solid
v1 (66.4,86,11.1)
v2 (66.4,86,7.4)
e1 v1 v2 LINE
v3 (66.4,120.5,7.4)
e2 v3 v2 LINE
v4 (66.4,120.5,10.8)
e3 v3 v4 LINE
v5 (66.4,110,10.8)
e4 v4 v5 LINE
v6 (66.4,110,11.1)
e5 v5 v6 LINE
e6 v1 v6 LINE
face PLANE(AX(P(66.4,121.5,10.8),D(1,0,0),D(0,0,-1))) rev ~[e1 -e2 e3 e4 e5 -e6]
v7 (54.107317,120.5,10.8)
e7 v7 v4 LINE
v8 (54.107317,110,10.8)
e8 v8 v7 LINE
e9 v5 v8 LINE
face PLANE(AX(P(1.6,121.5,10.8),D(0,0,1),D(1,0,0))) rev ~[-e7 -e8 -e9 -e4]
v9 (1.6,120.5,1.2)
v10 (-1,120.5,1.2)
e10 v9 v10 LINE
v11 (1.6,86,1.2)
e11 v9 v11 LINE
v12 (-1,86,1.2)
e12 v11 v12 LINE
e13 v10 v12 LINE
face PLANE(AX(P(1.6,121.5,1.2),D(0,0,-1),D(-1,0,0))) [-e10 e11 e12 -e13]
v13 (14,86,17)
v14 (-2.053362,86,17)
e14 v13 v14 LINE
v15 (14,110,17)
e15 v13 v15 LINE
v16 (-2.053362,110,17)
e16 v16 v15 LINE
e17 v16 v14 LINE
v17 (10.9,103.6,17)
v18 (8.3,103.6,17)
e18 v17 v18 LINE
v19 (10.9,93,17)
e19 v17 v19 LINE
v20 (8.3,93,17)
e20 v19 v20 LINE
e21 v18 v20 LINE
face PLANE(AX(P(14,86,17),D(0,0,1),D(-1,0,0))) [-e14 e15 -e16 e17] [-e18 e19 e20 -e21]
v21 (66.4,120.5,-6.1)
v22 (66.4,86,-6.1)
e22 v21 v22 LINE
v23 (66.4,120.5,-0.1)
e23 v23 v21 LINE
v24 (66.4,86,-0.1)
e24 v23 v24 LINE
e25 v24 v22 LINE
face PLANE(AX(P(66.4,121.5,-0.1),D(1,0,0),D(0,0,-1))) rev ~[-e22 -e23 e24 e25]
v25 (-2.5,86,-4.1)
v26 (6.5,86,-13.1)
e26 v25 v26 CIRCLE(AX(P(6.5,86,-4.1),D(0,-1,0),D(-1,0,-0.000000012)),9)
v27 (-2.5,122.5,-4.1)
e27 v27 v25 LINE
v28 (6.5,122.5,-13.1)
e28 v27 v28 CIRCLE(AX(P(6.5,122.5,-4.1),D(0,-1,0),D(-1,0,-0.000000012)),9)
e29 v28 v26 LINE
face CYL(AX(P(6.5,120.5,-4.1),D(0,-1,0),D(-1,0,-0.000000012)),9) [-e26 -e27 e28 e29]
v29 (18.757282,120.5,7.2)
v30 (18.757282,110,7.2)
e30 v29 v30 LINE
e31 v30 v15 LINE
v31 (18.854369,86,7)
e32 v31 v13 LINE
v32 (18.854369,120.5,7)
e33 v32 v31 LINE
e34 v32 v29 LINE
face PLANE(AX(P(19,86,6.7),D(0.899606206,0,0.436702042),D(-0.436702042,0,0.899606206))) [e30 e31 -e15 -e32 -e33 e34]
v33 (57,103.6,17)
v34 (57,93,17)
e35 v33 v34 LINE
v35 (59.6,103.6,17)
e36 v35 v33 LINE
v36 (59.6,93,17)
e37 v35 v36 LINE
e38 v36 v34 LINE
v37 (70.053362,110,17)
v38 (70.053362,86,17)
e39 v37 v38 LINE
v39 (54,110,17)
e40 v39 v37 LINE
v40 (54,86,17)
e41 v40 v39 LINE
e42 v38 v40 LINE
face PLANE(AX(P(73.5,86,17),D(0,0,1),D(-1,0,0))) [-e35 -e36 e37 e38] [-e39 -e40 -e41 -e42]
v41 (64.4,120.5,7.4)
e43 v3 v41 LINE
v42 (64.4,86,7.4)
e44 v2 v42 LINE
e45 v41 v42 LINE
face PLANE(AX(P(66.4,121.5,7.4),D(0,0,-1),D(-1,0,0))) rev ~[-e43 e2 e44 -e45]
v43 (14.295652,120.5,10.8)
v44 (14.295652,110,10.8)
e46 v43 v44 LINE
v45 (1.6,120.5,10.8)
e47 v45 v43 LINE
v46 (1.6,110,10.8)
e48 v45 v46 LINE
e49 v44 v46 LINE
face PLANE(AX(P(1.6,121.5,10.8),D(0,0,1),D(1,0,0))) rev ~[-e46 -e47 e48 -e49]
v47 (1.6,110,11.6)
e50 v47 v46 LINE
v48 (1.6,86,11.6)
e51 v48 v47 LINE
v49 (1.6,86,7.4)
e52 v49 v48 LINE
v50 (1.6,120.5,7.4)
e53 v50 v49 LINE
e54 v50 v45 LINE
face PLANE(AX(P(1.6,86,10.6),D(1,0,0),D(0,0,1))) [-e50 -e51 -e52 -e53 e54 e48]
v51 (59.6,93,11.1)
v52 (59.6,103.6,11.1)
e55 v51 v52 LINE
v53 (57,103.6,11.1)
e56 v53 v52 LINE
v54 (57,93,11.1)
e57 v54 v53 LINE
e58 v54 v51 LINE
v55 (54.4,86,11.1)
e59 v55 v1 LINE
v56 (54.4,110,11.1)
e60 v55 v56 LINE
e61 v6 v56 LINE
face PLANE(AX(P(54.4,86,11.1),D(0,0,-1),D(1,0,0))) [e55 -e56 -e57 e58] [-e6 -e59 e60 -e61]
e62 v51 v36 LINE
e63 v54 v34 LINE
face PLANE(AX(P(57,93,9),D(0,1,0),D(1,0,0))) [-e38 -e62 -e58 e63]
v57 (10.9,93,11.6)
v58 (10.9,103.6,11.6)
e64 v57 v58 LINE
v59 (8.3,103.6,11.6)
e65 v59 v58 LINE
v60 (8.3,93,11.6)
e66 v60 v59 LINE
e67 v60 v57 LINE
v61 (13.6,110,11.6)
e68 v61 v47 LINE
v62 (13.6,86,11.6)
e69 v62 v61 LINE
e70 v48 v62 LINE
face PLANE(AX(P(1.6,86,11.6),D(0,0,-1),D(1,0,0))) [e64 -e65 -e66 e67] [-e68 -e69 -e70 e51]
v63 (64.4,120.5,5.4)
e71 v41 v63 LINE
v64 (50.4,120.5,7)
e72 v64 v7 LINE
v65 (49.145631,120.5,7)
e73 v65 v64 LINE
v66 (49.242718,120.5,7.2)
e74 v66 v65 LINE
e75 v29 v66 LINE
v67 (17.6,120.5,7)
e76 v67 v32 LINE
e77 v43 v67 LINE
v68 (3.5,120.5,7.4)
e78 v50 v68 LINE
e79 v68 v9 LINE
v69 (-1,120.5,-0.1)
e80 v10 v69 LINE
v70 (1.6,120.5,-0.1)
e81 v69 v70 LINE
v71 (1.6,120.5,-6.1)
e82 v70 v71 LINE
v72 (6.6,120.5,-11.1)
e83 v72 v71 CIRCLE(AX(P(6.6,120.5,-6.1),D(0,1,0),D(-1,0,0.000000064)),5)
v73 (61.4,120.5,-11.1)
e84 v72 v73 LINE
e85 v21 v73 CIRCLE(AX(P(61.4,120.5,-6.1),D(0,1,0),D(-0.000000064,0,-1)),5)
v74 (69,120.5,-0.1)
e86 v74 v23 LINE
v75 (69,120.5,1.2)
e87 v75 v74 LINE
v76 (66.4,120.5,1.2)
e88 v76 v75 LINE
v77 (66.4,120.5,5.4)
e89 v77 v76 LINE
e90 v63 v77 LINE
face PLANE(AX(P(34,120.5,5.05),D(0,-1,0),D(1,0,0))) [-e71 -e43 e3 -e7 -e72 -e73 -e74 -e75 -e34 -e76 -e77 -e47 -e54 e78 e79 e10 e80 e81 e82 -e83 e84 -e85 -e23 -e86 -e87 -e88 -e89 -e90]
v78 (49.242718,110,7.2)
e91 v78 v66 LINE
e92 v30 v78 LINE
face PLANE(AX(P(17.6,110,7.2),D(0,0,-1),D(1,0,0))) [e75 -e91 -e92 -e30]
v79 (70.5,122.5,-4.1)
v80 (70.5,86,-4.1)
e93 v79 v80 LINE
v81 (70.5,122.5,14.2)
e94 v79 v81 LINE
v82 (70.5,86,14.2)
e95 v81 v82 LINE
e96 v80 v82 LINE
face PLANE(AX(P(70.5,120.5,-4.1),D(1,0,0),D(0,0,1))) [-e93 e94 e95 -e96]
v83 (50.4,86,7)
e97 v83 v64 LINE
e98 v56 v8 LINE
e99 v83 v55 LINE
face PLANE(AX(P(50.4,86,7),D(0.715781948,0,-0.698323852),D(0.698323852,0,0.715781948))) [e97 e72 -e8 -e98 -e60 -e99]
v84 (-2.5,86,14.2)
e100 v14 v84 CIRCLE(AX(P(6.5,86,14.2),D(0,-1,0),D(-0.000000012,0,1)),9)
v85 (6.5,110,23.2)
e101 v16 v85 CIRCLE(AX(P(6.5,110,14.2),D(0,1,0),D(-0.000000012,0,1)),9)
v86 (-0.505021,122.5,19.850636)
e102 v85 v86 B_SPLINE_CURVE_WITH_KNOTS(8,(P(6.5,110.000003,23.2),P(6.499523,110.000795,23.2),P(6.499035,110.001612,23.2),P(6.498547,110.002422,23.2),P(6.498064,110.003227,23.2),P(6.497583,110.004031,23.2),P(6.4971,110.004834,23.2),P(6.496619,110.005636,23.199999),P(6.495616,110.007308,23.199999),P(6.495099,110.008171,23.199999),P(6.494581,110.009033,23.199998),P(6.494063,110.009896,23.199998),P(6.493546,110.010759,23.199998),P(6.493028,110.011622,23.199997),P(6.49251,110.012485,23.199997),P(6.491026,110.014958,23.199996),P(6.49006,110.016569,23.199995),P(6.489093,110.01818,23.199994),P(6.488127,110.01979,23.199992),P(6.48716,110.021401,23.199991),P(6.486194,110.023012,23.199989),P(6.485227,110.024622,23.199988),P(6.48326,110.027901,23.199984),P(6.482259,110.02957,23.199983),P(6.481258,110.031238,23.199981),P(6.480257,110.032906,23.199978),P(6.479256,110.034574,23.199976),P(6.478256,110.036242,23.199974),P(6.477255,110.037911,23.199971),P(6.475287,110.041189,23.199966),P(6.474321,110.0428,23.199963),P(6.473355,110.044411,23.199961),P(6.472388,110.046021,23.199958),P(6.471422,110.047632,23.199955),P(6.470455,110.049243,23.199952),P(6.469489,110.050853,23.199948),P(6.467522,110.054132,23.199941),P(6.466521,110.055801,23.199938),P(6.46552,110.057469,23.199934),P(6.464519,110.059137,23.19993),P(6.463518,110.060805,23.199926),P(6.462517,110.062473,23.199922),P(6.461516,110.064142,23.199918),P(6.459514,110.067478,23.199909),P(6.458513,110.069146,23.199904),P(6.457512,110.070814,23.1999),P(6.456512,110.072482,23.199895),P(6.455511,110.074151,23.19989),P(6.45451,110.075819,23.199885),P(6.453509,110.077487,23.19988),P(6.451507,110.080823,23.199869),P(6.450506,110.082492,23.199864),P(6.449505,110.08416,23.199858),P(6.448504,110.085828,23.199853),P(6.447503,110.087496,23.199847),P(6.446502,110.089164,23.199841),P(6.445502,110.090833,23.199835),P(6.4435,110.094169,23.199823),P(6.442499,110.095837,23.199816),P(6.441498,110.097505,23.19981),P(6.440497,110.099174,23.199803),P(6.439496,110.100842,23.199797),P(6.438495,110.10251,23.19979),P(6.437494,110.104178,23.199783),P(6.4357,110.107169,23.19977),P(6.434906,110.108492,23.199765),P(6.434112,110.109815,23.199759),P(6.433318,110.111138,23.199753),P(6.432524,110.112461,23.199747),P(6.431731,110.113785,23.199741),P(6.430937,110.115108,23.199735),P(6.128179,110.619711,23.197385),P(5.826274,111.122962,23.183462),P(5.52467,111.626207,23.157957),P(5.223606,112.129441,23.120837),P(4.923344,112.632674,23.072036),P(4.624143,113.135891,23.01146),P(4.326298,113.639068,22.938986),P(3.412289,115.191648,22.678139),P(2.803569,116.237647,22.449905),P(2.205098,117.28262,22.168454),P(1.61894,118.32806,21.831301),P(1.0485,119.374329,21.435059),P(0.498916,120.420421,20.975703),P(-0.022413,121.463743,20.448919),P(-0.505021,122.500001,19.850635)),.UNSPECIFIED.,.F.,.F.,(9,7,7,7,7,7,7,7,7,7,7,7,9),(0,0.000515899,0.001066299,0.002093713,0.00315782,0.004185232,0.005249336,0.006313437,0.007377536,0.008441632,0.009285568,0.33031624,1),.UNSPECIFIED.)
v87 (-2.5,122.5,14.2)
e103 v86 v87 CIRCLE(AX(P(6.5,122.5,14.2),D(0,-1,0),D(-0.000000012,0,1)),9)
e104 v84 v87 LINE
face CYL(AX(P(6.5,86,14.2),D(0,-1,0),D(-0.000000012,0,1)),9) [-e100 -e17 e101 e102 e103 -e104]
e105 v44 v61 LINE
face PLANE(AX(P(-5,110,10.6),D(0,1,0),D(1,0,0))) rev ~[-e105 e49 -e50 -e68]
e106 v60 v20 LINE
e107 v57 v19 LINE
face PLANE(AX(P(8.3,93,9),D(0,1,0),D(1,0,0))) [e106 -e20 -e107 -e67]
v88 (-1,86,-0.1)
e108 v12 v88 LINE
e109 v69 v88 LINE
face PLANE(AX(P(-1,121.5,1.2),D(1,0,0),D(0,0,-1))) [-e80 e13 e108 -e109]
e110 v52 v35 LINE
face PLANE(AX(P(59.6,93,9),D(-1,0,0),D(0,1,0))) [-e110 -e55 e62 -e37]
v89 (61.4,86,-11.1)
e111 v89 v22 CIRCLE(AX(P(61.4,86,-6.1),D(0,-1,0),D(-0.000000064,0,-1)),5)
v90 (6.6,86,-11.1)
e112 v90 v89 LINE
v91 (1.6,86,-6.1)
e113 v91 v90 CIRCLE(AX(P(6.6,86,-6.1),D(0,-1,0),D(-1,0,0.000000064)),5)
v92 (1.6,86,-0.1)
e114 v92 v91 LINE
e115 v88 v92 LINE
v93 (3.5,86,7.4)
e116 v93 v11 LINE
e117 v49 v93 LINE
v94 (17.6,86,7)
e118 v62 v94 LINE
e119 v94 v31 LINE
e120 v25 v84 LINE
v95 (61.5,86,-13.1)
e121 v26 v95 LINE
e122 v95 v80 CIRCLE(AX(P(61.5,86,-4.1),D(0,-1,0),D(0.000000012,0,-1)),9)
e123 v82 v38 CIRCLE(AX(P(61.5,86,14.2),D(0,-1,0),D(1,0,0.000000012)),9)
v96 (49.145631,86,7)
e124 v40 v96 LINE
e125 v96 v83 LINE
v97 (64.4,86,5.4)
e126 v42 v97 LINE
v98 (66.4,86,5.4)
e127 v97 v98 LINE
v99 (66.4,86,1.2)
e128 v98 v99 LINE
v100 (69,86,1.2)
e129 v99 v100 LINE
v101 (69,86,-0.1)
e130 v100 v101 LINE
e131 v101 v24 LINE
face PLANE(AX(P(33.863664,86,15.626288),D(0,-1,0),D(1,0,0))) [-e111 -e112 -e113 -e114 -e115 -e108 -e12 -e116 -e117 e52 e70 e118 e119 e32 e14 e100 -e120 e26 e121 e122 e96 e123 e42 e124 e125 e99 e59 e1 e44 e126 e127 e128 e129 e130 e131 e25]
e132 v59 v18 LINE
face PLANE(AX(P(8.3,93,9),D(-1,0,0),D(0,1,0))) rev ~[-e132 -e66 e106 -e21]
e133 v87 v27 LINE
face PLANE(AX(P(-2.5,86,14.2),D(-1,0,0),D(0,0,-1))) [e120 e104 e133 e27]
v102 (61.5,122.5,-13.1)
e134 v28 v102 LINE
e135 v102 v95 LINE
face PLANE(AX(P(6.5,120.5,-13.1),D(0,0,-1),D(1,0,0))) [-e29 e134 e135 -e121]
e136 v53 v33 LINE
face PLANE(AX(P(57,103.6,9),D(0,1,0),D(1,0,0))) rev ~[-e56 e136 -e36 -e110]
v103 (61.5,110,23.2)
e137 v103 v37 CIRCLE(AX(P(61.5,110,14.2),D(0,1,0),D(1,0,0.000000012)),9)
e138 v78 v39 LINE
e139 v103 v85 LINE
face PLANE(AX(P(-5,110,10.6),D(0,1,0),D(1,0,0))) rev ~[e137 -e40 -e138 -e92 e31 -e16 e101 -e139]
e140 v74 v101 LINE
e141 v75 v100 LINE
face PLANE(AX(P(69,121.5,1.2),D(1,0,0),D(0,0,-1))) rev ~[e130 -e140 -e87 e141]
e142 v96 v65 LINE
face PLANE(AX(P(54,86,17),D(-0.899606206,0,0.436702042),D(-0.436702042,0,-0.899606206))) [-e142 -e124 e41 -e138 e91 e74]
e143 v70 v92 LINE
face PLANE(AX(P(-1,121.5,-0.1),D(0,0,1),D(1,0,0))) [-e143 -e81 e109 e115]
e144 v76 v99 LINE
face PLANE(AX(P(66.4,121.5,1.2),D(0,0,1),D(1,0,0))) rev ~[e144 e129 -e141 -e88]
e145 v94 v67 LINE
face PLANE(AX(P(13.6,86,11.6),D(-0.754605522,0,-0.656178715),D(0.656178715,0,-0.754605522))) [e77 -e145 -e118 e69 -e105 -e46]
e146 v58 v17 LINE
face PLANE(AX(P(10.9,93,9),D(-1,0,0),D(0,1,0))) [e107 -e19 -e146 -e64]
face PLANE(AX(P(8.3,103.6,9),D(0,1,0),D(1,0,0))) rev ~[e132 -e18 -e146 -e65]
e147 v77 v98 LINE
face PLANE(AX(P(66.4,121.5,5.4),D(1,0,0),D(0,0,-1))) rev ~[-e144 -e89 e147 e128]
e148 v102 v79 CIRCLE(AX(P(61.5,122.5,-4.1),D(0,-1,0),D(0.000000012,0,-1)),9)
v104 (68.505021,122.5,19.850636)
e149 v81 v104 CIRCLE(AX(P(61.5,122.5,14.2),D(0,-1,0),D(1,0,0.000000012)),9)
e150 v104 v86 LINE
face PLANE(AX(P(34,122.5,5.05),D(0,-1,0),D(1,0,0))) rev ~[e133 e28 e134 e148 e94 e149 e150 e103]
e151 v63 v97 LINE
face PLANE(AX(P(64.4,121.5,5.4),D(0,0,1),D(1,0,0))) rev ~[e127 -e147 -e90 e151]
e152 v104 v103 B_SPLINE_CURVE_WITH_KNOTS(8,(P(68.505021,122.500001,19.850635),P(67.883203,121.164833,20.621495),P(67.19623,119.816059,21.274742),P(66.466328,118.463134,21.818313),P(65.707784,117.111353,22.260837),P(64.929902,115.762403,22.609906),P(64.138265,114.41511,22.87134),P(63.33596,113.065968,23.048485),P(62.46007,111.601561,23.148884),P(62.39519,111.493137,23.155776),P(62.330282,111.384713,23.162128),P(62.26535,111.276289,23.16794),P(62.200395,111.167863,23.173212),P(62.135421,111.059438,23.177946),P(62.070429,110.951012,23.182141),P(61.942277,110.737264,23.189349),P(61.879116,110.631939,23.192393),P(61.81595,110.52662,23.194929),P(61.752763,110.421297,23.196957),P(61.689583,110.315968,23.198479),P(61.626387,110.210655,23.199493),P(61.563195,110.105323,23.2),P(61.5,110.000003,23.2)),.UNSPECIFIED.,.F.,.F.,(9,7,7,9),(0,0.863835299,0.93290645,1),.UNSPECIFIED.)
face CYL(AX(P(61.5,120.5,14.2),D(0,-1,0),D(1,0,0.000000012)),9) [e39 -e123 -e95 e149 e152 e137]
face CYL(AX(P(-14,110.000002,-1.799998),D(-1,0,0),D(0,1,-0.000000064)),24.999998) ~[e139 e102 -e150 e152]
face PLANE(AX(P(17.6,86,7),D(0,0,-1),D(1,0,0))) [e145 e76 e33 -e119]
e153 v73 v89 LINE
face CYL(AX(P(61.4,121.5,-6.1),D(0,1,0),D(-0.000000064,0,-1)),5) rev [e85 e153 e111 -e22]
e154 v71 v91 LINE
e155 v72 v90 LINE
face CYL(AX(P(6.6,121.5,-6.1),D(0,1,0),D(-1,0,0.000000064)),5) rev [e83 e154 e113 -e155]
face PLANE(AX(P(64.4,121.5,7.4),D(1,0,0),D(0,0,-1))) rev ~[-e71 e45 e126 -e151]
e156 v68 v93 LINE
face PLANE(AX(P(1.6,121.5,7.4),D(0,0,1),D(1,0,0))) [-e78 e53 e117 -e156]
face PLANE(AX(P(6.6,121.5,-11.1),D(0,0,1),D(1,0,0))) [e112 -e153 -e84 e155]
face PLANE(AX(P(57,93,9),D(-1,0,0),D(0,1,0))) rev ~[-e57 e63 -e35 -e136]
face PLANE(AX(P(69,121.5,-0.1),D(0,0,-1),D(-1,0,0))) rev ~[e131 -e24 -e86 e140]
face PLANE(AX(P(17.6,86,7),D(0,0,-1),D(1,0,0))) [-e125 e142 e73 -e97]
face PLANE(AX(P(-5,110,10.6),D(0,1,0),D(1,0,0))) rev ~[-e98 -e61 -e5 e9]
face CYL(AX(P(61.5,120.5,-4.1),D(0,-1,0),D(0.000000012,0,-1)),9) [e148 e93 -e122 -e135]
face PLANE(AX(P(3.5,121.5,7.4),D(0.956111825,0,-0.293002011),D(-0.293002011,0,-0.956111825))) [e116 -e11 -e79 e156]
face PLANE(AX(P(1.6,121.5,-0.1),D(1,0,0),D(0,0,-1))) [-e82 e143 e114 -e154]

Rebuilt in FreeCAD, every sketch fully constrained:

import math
import FreeCAD as App
import Part
import Sketcher

doc = App.newDocument("Part")
body = doc.addObject("PartDesign::Body", "Body")

# Sketch on XY plane
sketch1 = body.newObject("Sketcher::SketchObject", "Sketch")
sketch1.AttachmentSupport = (doc.getObject("XY_Plane"), [""])
sketch1.MapMode = "FlatFace"
sketch1.AttachmentOffset = App.Placement(App.Vector(0, 0, 9), App.Rotation())
sketch1.addGeometry(Part.LineSegment(App.Vector(57, 103.6, 0), App.Vector(57, 93, 0)), False)
sketch1.addGeometry(Part.LineSegment(App.Vector(57, 93, 0), App.Vector(59.6, 93, 0)), False)
sketch1.addGeometry(Part.LineSegment(App.Vector(59.6, 93, 0), App.Vector(59.6, 103.6, 0)), False)
sketch1.addGeometry(Part.LineSegment(App.Vector(59.6, 103.6, 0), App.Vector(57, 103.6, 0)), False)
sketch1.addConstraint(Sketcher.Constraint("Coincident", 0, 2, 1, 1))
sketch1.addConstraint(Sketcher.Constraint("Coincident", 1, 2, 2, 1))
sketch1.addConstraint(Sketcher.Constraint("Coincident", 2, 2, 3, 1))
sketch1.addConstraint(Sketcher.Constraint("Coincident", 3, 2, 0, 1))
sketch1.addConstraint(Sketcher.Constraint("Vertical", 0))
sketch1.addConstraint(Sketcher.Constraint("Horizontal", 1))
sketch1.addConstraint(Sketcher.Constraint("Vertical", 2))
sketch1.addConstraint(Sketcher.Constraint("Horizontal", 3))
sketch1.addConstraint(Sketcher.Constraint("DistanceX", 1, 1, 1, 2, 2.6))
sketch1.addConstraint(Sketcher.Constraint("DistanceY", 0, 2, 0, 1, 10.6))
sketch1.addConstraint(Sketcher.Constraint("DistanceX", -1, 1, 0, 2, 57.0))
sketch1.addConstraint(Sketcher.Constraint("DistanceY", -1, 1, 0, 2, 93.0))
pad1 = body.newObject("PartDesign::Pad", "Pad")
pad1.Profile = sketch1
pad1.Length = 15
body2 = doc.addObject("PartDesign::Body", "Body001")
body2.AllowCompound = True

# Sketch on XY plane
sketch2 = body2.newObject("Sketcher::SketchObject", "Sketch001")
sketch2.AttachmentSupport = (doc.getObject("XY_Plane001"), [""])
sketch2.MapMode = "FlatFace"
sketch2.AttachmentOffset = App.Placement(App.Vector(0, 0, 9), App.Rotation())
sketch2.addGeometry(Part.LineSegment(App.Vector(8.3, 103.6, 0), App.Vector(8.3, 93, 0)), False)
sketch2.addGeometry(Part.LineSegment(App.Vector(8.3, 93, 0), App.Vector(10.9, 93, 0)), False)
sketch2.addGeometry(Part.LineSegment(App.Vector(10.9, 93, 0), App.Vector(10.9, 103.6, 0)), False)
sketch2.addGeometry(Part.LineSegment(App.Vector(10.9, 103.6, 0), App.Vector(8.3, 103.6, 0)), False)
sketch2.addConstraint(Sketcher.Constraint("Coincident", 0, 2, 1, 1))
sketch2.addConstraint(Sketcher.Constraint("Coincident", 1, 2, 2, 1))
sketch2.addConstraint(Sketcher.Constraint("Coincident", 2, 2, 3, 1))
sketch2.addConstraint(Sketcher.Constraint("Coincident", 3, 2, 0, 1))
sketch2.addConstraint(Sketcher.Constraint("Vertical", 0))
sketch2.addConstraint(Sketcher.Constraint("Horizontal", 1))
sketch2.addConstraint(Sketcher.Constraint("Vertical", 2))
sketch2.addConstraint(Sketcher.Constraint("Horizontal", 3))
sketch2.addConstraint(Sketcher.Constraint("DistanceX", 1, 1, 1, 2, 2.6))
sketch2.addConstraint(Sketcher.Constraint("DistanceY", 0, 2, 0, 1, 10.6))
sketch2.addConstraint(Sketcher.Constraint("DistanceY", -1, 1, 0, 2, 93.0))
sketch2.addConstraint(Sketcher.Constraint("DistanceX", -1, 1, 0, 2, 8.3))
pad2 = body2.newObject("PartDesign::Pad", "Pad001")
pad2.Profile = sketch2
pad2.Length = 15
doc.recompute()

boolean = body2.newObject("PartDesign::Boolean", "Boolean")
boolean.Type = "Fuse"
boolean.addObjects([body])
body3 = doc.addObject("PartDesign::Body", "Body002")

# Sketch on XY plane
sketch3 = body3.newObject("Sketcher::SketchObject", "Sketch002")
sketch3.AttachmentSupport = (doc.getObject("XY_Plane002"), [""])
sketch3.MapMode = "FlatFace"
sketch3.addGeometry(Part.LineSegment(App.Vector(-5.5, 17, 0), App.Vector(14, 17, 0)), False)
sketch3.addGeometry(Part.LineSegment(App.Vector(14, 17, 0), App.Vector(19, 6.7, 0)), False)
sketch3.addGeometry(Part.LineSegment(App.Vector(19, 6.7, 0), App.Vector(19, 6.6, 0)), False)
sketch3.addGeometry(Part.LineSegment(App.Vector(19, 6.6, 0), App.Vector(49, 6.6, 0)), False)
sketch3.addGeometry(Part.LineSegment(App.Vector(49, 6.6, 0), App.Vector(49, 6.7, 0)), False)
sketch3.addGeometry(Part.LineSegment(App.Vector(49, 6.7, 0), App.Vector(54, 17, 0)), False)
sketch3.addGeometry(Part.LineSegment(App.Vector(54, 17, 0), App.Vector(73.5, 17, 0)), False)
sketch3.addGeometry(Part.LineSegment(App.Vector(73.5, 17, 0), App.Vector(73.5, 25.6, 0)), False)
sketch3.addGeometry(Part.LineSegment(App.Vector(73.5, 25.6, 0), App.Vector(-5.5, 25.6, 0)), False)
sketch3.addGeometry(Part.LineSegment(App.Vector(-5.5, 25.6, 0), App.Vector(-5.5, 17, 0)), False)
sketch3.addConstraint(Sketcher.Constraint("Coincident", 0, 2, 1, 1))
sketch3.addConstraint(Sketcher.Constraint("Coincident", 1, 2, 2, 1))
sketch3.addConstraint(Sketcher.Constraint("Coincident", 2, 2, 3, 1))
sketch3.addConstraint(Sketcher.Constraint("Coincident", 3, 2, 4, 1))
sketch3.addConstraint(Sketcher.Constraint("Coincident", 4, 2, 5, 1))
sketch3.addConstraint(Sketcher.Constraint("Coincident", 5, 2, 6, 1))
sketch3.addConstraint(Sketcher.Constraint("Coincident", 6, 2, 7, 1))
sketch3.addConstraint(Sketcher.Constraint("Coincident", 7, 2, 8, 1))
sketch3.addConstraint(Sketcher.Constraint("Coincident", 8, 2, 9, 1))
sketch3.addConstraint(Sketcher.Constraint("Coincident", 9, 2, 0, 1))
sketch3.addConstraint(Sketcher.Constraint("Horizontal", 0))
sketch3.addConstraint(Sketcher.Constraint("Vertical", 2))
sketch3.addConstraint(Sketcher.Constraint("Horizontal", 3))
sketch3.addConstraint(Sketcher.Constraint("Vertical", 4))
sketch3.addConstraint(Sketcher.Constraint("Horizontal", 6))
sketch3.addConstraint(Sketcher.Constraint("Vertical", 7))
sketch3.addConstraint(Sketcher.Constraint("Horizontal", 8))
sketch3.addConstraint(Sketcher.Constraint("Vertical", 9))
sketch3.addConstraint(Sketcher.Constraint("Horizontal", 1, 2, 4, 2))
sketch3.addConstraint(Sketcher.Constraint("Horizontal", 0, 2, 5, 2))
sketch3.addConstraint(Sketcher.Constraint("Equal", 0, 6))
sketch3.addConstraint(Sketcher.Constraint("Equal", 1, 5))
sketch3.addConstraint(Sketcher.Constraint("DistanceX", 3, 1, 3, 2, 30.0))
sketch3.addConstraint(Sketcher.Constraint("DistanceX", 8, 2, 8, 1, 79.0))
sketch3.addConstraint(Sketcher.Constraint("DistanceX", 0, 1, 0, 2, 19.5))
sketch3.addConstraint(Sketcher.Constraint("DistanceY", 2, 2, 2, 1, 0.1))
sketch3.addConstraint(Sketcher.Constraint("DistanceY", 7, 1, 7, 2, 8.6))
sketch3.addConstraint(Sketcher.Constraint("DistanceX", -1, 1, 0, 2, 14.0))
sketch3.addConstraint(Sketcher.Constraint("DistanceY", -1, 1, 0, 2, 17.0))
sketch3.addConstraint(Sketcher.Constraint("DistanceY", 3, 2, 7, 2, 19.0))
pad3 = body3.newObject("PartDesign::Pad", "Pad002")
pad3.Profile = sketch3
pad3.Length = 34.5
pad3.Reversed = True
body4 = doc.addObject("PartDesign::Body", "Body003")
doc.recompute()

body3.Placement = App.Placement(App.Vector(0, 0, 0), App.Rotation(App.Vector(1, 0, 0), 90))
boolean2 = body4.newObject("PartDesign::Boolean", "Boolean001")
boolean2.Type = "Fuse"
boolean2.addObjects([body3])
body5 = doc.addObject("PartDesign::Body", "Body004")
doc.recompute()

body4.Placement = App.Placement(App.Vector(0, 86, 0), App.Rotation(App.Vector(0, 0, 1), 0))
boolean3 = body5.newObject("PartDesign::Boolean", "Boolean002")
boolean3.Type = "Fuse"
boolean3.addObjects([body4])
body6 = doc.addObject("PartDesign::Body", "Body005")

# Sketch on XY plane
sketch4 = body6.newObject("Sketcher::SketchObject", "Sketch003")
sketch4.AttachmentSupport = (doc.getObject("XY_Plane005"), [""])
sketch4.MapMode = "FlatFace"
sketch4.addGeometry(Part.LineSegment(App.Vector(-2.5, 14.2, 0), App.Vector(-2.5, 10.6, 0)), False)
sketch4.addGeometry(Part.LineSegment(App.Vector(-2.5, 10.6, 0), App.Vector(1.6, 10.6, 0)), False)
sketch4.addGeometry(Part.LineSegment(App.Vector(1.6, 10.6, 0), App.Vector(1.6, 11.6, 0)), False)
sketch4.addGeometry(Part.LineSegment(App.Vector(1.6, 11.6, 0), App.Vector(13.6, 11.6, 0)), False)
sketch4.addGeometry(Part.LineSegment(App.Vector(13.6, 11.6, 0), App.Vector(17.6, 7, 0)), False)
sketch4.addGeometry(Part.LineSegment(App.Vector(17.6, 7, 0), App.Vector(50.4, 7, 0)), False)
sketch4.addGeometry(Part.LineSegment(App.Vector(50.4, 7, 0), App.Vector(54.4, 11.1, 0)), False)
sketch4.addGeometry(Part.LineSegment(App.Vector(54.4, 11.1, 0), App.Vector(66.4, 11.1, 0)), False)
sketch4.addGeometry(Part.LineSegment(App.Vector(66.4, 11.1, 0), App.Vector(66.4, 10.6, 0)), False)
sketch4.addGeometry(Part.LineSegment(App.Vector(66.4, 10.6, 0), App.Vector(70.5, 10.6, 0)), False)
sketch4.addGeometry(Part.LineSegment(App.Vector(70.5, 10.6, 0), App.Vector(70.5, 14.2, 0)), False)
sketch4.addGeometry(Part.ArcOfCircle(Part.Circle(App.Vector(61.5, 14.2, 0), App.Vector(0, 0, 1), 9), math.radians(0), math.radians(90)), False)
sketch4.addGeometry(Part.LineSegment(App.Vector(61.5, 23.2, 0), App.Vector(6.5, 23.2, 0)), False)
sketch4.addGeometry(Part.ArcOfCircle(Part.Circle(App.Vector(6.5, 14.2, 0), App.Vector(0, 0, 1), 9), math.radians(90), math.radians(180)), False)
sketch4.addConstraint(Sketcher.Constraint("Coincident", 0, 2, 1, 1))
sketch4.addConstraint(Sketcher.Constraint("Coincident", 1, 2, 2, 1))
sketch4.addConstraint(Sketcher.Constraint("Coincident", 2, 2, 3, 1))
sketch4.addConstraint(Sketcher.Constraint("Coincident", 3, 2, 4, 1))
sketch4.addConstraint(Sketcher.Constraint("Coincident", 4, 2, 5, 1))
sketch4.addConstraint(Sketcher.Constraint("Coincident", 5, 2, 6, 1))
sketch4.addConstraint(Sketcher.Constraint("Coincident", 6, 2, 7, 1))
sketch4.addConstraint(Sketcher.Constraint("Coincident", 7, 2, 8, 1))
sketch4.addConstraint(Sketcher.Constraint("Coincident", 8, 2, 9, 1))
sketch4.addConstraint(Sketcher.Constraint("Coincident", 9, 2, 10, 1))
sketch4.addConstraint(Sketcher.Constraint("Tangent", 10, 2, 11, 1))
sketch4.addConstraint(Sketcher.Constraint("Tangent", 11, 2, 12, 1))
sketch4.addConstraint(Sketcher.Constraint("Tangent", 12, 2, 13, 1))
sketch4.addConstraint(Sketcher.Constraint("Tangent", 13, 2, 0, 1))
sketch4.addConstraint(Sketcher.Constraint("Vertical", 0))
sketch4.addConstraint(Sketcher.Constraint("Horizontal", 1))
sketch4.addConstraint(Sketcher.Constraint("Vertical", 2))
sketch4.addConstraint(Sketcher.Constraint("Horizontal", 3))
sketch4.addConstraint(Sketcher.Constraint("Horizontal", 5))
sketch4.addConstraint(Sketcher.Constraint("Horizontal", 7))
sketch4.addConstraint(Sketcher.Constraint("Vertical", 8))
sketch4.addConstraint(Sketcher.Constraint("Horizontal", 9))
sketch4.addConstraint(Sketcher.Constraint("Vertical", 10))
sketch4.addConstraint(Sketcher.Constraint("Horizontal", 12))
sketch4.addConstraint(Sketcher.Constraint("Equal", 11, 13))
sketch4.addConstraint(Sketcher.Constraint("Horizontal", 1, 2, 8, 2))
sketch4.addConstraint(Sketcher.Constraint("Equal", 3, 7))
sketch4.addConstraint(Sketcher.Constraint("Equal", 1, 9))
sketch4.addConstraint(Sketcher.Constraint("Radius", 11, 9.0))
sketch4.addConstraint(Sketcher.Constraint("DistanceX", 3, 1, 3, 2, 12.0))
sketch4.addConstraint(Sketcher.Constraint("DistanceX", 12, 2, 12, 1, 55.0))
sketch4.addConstraint(Sketcher.Constraint("DistanceY", 2, 1, 2, 2, 1.0))
sketch4.addConstraint(Sketcher.Constraint("DistanceX", 1, 1, 1, 2, 4.1))
sketch4.addConstraint(Sketcher.Constraint("DistanceX", 5, 1, 5, 2, 32.8))
sketch4.addConstraint(Sketcher.Constraint("DistanceY", 0, 2, 0, 1, 3.6))
sketch4.addConstraint(Sketcher.Constraint("DistanceY", 8, 2, 8, 1, 0.5))
sketch4.addConstraint(Sketcher.Constraint("DistanceY", -1, 1, 4, 2, 7.0))
sketch4.addConstraint(Sketcher.Constraint("DistanceX", 3, 2, 4, 2, 4.0))
sketch4.addConstraint(Sketcher.Constraint("DistanceX", -1, 1, 11, 3, 61.5))
sketch4.addConstraint(Sketcher.Constraint("DistanceY", -1, 1, 11, 3, 14.2))
pad4 = body6.newObject("PartDesign::Pad", "Pad003")
pad4.Profile = sketch4
pad4.Length = 34.5
pad4.Reversed = True
body7 = doc.addObject("PartDesign::Body", "Body006")
doc.recompute()

body6.Placement = App.Placement(App.Vector(0, 0, 0), App.Rotation(App.Vector(1, 0, 0), 90))
boolean4 = body7.newObject("PartDesign::Boolean", "Boolean003")
boolean4.Type = "Fuse"
boolean4.addObjects([body6])
body8 = doc.addObject("PartDesign::Body", "Body007")
body8.AllowCompound = True
doc.recompute()

body7.Placement = App.Placement(App.Vector(0, 86, 0), App.Rotation(App.Vector(0, 0, 1), 0))
boolean5 = body8.newObject("PartDesign::Boolean", "Boolean004")
boolean5.Type = "Fuse"
boolean5.addObjects([body7])
doc.recompute()

boolean6 = body8.newObject("PartDesign::Boolean", "Boolean005")
boolean6.Type = "Cut"
boolean6.addObjects([body5])
body9 = doc.addObject("PartDesign::Body", "Body008")

# Sketch on XY plane
sketch5 = body9.newObject("Sketcher::SketchObject", "Sketch004")
sketch5.AttachmentSupport = (doc.getObject("XY_Plane008"), [""])
sketch5.MapMode = "FlatFace"
sketch5.addGeometry(Part.LineSegment(App.Vector(14, 12, 0), App.Vector(18, 7, 0)), False)
sketch5.addGeometry(Part.LineSegment(App.Vector(18, 7, 0), App.Vector(50, 7, 0)), False)
sketch5.addGeometry(Part.LineSegment(App.Vector(50, 7, 0), App.Vector(54, 12, 0)), False)
sketch5.addGeometry(Part.LineSegment(App.Vector(54, 12, 0), App.Vector(14, 12, 0)), False)
sketch5.addConstraint(Sketcher.Constraint("Coincident", 0, 2, 1, 1))
sketch5.addConstraint(Sketcher.Constraint("Coincident", 1, 2, 2, 1))
sketch5.addConstraint(Sketcher.Constraint("Coincident", 2, 2, 3, 1))
sketch5.addConstraint(Sketcher.Constraint("Coincident", 3, 2, 0, 1))
sketch5.addConstraint(Sketcher.Constraint("Horizontal", 1))
sketch5.addConstraint(Sketcher.Constraint("Horizontal", 3))
sketch5.addConstraint(Sketcher.Constraint("Equal", 0, 2))
sketch5.addConstraint(Sketcher.Constraint("DistanceX", 1, 1, 1, 2, 32.8))
sketch5.addConstraint(Sketcher.Constraint("DistanceX", 3, 2, 3, 1, 40.8))
sketch5.addConstraint(Sketcher.Constraint("DistanceY", 1, 2, 2, 2, 5.0))
sketch5.addConstraint(Sketcher.Constraint("DistanceX", -1, 1, 0, 2, 17.6))
sketch5.addConstraint(Sketcher.Constraint("DistanceY", -1, 1, 0, 2, 7.2))
pad5 = body9.newObject("PartDesign::Pad", "Pad004")
pad5.Profile = sketch5
pad5.Length = 10.5
pad5.Reversed = True
body10 = doc.addObject("PartDesign::Body", "Body009")
doc.recompute()

body9.Placement = App.Placement(App.Vector(0, 0, 0), App.Rotation(App.Vector(1, 0, 0), 90))
boolean7 = body10.newObject("PartDesign::Boolean", "Boolean006")
boolean7.Type = "Fuse"
boolean7.addObjects([body9])
body11 = doc.addObject("PartDesign::Body", "Body010")
doc.recompute()

body10.Placement = App.Placement(App.Vector(0, 110, 0), App.Rotation(App.Vector(0, 0, 1), 0))
boolean8 = body11.newObject("PartDesign::Boolean", "Boolean007")
boolean8.Type = "Fuse"
boolean8.addObjects([body10])
doc.recompute()

boolean9 = body11.newObject("PartDesign::Boolean", "Boolean008")
boolean9.Type = "Fuse"
boolean9.addObjects([body8])
doc.recompute()

boolean10 = body11.newObject("PartDesign::Boolean", "Boolean009")
boolean10.Type = "Cut"
boolean10.addObjects([body2])
body12 = doc.addObject("PartDesign::Body", "Body011")

# Sketch on YZ plane
sketch6 = body12.newObject("Sketcher::SketchObject", "Sketch005")
sketch6.AttachmentSupport = (doc.getObject("YZ_Plane011"), [""])
sketch6.MapMode = "FlatFace"
sketch6.AttachmentOffset = App.Placement(App.Vector(0, 0, -14), App.Rotation())
sketch6.addGeometry(Part.LineSegment(App.Vector(100, 26.2, 0), App.Vector(100, 23.2, 0)), False)
sketch6.addGeometry(Part.LineSegment(App.Vector(100, 23.2, 0), App.Vector(110, 23.2, 0)), False)
sketch6.addGeometry(Part.ArcOfCircle(Part.Circle(App.Vector(110, -1.8, 0), App.Vector(0, 0, 1), 25), math.radians(0), math.radians(90)), False)
sketch6.addGeometry(Part.LineSegment(App.Vector(135, -1.8, 0), App.Vector(135, -11.8, 0)), False)
sketch6.addGeometry(Part.LineSegment(App.Vector(135, -11.8, 0), App.Vector(138, -11.8, 0)), False)
sketch6.addGeometry(Part.LineSegment(App.Vector(138, -11.8, 0), App.Vector(138, 26.2, 0)), False)
sketch6.addGeometry(Part.LineSegment(App.Vector(138, 26.2, 0), App.Vector(100, 26.2, 0)), False)
sketch6.addConstraint(Sketcher.Constraint("Coincident", 0, 2, 1, 1))
sketch6.addConstraint(Sketcher.Constraint("Tangent", 1, 2, 2, 2))
sketch6.addConstraint(Sketcher.Constraint("Tangent", 2, 1, 3, 1))
sketch6.addConstraint(Sketcher.Constraint("Coincident", 3, 2, 4, 1))
sketch6.addConstraint(Sketcher.Constraint("Coincident", 4, 2, 5, 1))
sketch6.addConstraint(Sketcher.Constraint("Coincident", 5, 2, 6, 1))
sketch6.addConstraint(Sketcher.Constraint("Coincident", 6, 2, 0, 1))
sketch6.addConstraint(Sketcher.Constraint("Vertical", 0))
sketch6.addConstraint(Sketcher.Constraint("Horizontal", 1))
sketch6.addConstraint(Sketcher.Constraint("Vertical", 3))
sketch6.addConstraint(Sketcher.Constraint("Horizontal", 4))
sketch6.addConstraint(Sketcher.Constraint("Vertical", 5))
sketch6.addConstraint(Sketcher.Constraint("Horizontal", 6))
sketch6.addConstraint(Sketcher.Constraint("Equal", 4, 0))
sketch6.addConstraint(Sketcher.Constraint("Equal", 1, 3))
sketch6.addConstraint(Sketcher.Constraint("Radius", 2, 24.999998))
sketch6.addConstraint(Sketcher.Constraint("DistanceX", 1, 1, 1, 2, 10.0))
sketch6.addConstraint(Sketcher.Constraint("DistanceX", 4, 1, 4, 2, 3.0))
sketch6.addConstraint(Sketcher.Constraint("DistanceX", -1, 1, 2, 3, 110.000002))
sketch6.addConstraint(Sketcher.Constraint("DistanceY", 2, 3, -1, 1, 1.799998))
pad6 = body12.newObject("PartDesign::Pad", "Pad005")
pad6.Profile = sketch6
pad6.Length = 100
body13 = doc.addObject("PartDesign::Body", "Body012")

# Sketch on XY plane
sketch7 = body13.newObject("Sketcher::SketchObject", "Sketch006")
sketch7.AttachmentSupport = (doc.getObject("XY_Plane012"), [""])
sketch7.MapMode = "FlatFace"
sketch7.addGeometry(Part.LineSegment(App.Vector(-2, 14, 0), App.Vector(-2, -4, 0)), False)
sketch7.addGeometry(Part.ArcOfCircle(Part.Circle(App.Vector(7, -4, 0), App.Vector(0, 0, 1), 9), math.radians(-180), math.radians(-90)), False)
sketch7.addGeometry(Part.LineSegment(App.Vector(6, -13, 0), App.Vector(62, -13, 0)), False)
sketch7.addGeometry(Part.ArcOfCircle(Part.Circle(App.Vector(61, -4, 0), App.Vector(0, 0, 1), 9), math.radians(-90), math.radians(0)), False)
sketch7.addGeometry(Part.LineSegment(App.Vector(70, -4, 0), App.Vector(70, 14, 0)), False)
sketch7.addGeometry(Part.ArcOfCircle(Part.Circle(App.Vector(61, 14, 0), App.Vector(0, 0, 1), 9), math.radians(0), math.radians(90)), False)
sketch7.addGeometry(Part.LineSegment(App.Vector(62, 23, 0), App.Vector(6, 23, 0)), False)
sketch7.addGeometry(Part.ArcOfCircle(Part.Circle(App.Vector(7, 14, 0), App.Vector(0, 0, 1), 9), math.radians(90), math.radians(180)), False)
sketch7.addConstraint(Sketcher.Constraint("Tangent", 0, 2, 1, 1))
sketch7.addConstraint(Sketcher.Constraint("Tangent", 1, 2, 2, 1))
sketch7.addConstraint(Sketcher.Constraint("Tangent", 2, 2, 3, 1))
sketch7.addConstraint(Sketcher.Constraint("Tangent", 3, 2, 4, 1))
sketch7.addConstraint(Sketcher.Constraint("Tangent", 4, 2, 5, 1))
sketch7.addConstraint(Sketcher.Constraint("Tangent", 5, 2, 6, 1))
sketch7.addConstraint(Sketcher.Constraint("Tangent", 6, 2, 7, 1))
sketch7.addConstraint(Sketcher.Constraint("Tangent", 7, 2, 0, 1))
sketch7.addConstraint(Sketcher.Constraint("Vertical", 0))
sketch7.addConstraint(Sketcher.Constraint("Horizontal", 2))
sketch7.addConstraint(Sketcher.Constraint("Vertical", 4))
sketch7.addConstraint(Sketcher.Constraint("Horizontal", 6))
sketch7.addConstraint(Sketcher.Constraint("Equal", 1, 3))
sketch7.addConstraint(Sketcher.Constraint("Equal", 3, 5))
sketch7.addConstraint(Sketcher.Constraint("Equal", 5, 7))
sketch7.addConstraint(Sketcher.Constraint("Radius", 1, 9.0))
sketch7.addConstraint(Sketcher.Constraint("DistanceX", 2, 1, 2, 2, 55.0))
sketch7.addConstraint(Sketcher.Constraint("DistanceY", 0, 2, 0, 1, 18.3))
sketch7.addConstraint(Sketcher.Constraint("DistanceX", -1, 1, 1, 3, 6.5))
sketch7.addConstraint(Sketcher.Constraint("DistanceY", 1, 3, -1, 1, 4.1))
pad7 = body13.newObject("PartDesign::Pad", "Pad006")
pad7.Profile = sketch7
pad7.Length = 2
pad7.Reversed = True
body14 = doc.addObject("PartDesign::Body", "Body013")
doc.recompute()

body13.Placement = App.Placement(App.Vector(0, 0, 0), App.Rotation(App.Vector(1, 0, 0), 90))
boolean11 = body14.newObject("PartDesign::Boolean", "Boolean010")
boolean11.Type = "Fuse"
boolean11.addObjects([body13])
body15 = doc.addObject("PartDesign::Body", "Body014")
doc.recompute()

body14.Placement = App.Placement(App.Vector(0, 120, 0), App.Rotation(App.Vector(0, 0, 1), 0))
boolean12 = body15.newObject("PartDesign::Boolean", "Boolean011")
boolean12.Type = "Fuse"
boolean12.addObjects([body14])
body16 = doc.addObject("PartDesign::Body", "Body015")
doc.recompute()

body15.Placement = App.Placement(App.Vector(0, 0.5, 0), App.Rotation(App.Vector(0, 0, 1), 0))
boolean13 = body16.newObject("PartDesign::Boolean", "Boolean012")
boolean13.Type = "Fuse"
boolean13.addObjects([body15])
body17 = doc.addObject("PartDesign::Body", "Body016")

# Sketch on XY plane
sketch8 = body17.newObject("Sketcher::SketchObject", "Sketch007")
sketch8.AttachmentSupport = (doc.getObject("XY_Plane016"), [""])
sketch8.MapMode = "FlatFace"
sketch8.AttachmentOffset = App.Placement(App.Vector(0, 0, 10.6), App.Rotation())
sketch8.addGeometry(Part.LineSegment(App.Vector(-5, 110, 0), App.Vector(-5, 82, 0)), False)
sketch8.addGeometry(Part.LineSegment(App.Vector(-5, 82, 0), App.Vector(75, 82, 0)), False)
sketch8.addGeometry(Part.LineSegment(App.Vector(75, 82, 0), App.Vector(75, 110, 0)), False)
sketch8.addGeometry(Part.LineSegment(App.Vector(75, 110, 0), App.Vector(-5, 110, 0)), False)
sketch8.addConstraint(Sketcher.Constraint("Coincident", 0, 2, 1, 1))
sketch8.addConstraint(Sketcher.Constraint("Coincident", 1, 2, 2, 1))
sketch8.addConstraint(Sketcher.Constraint("Coincident", 2, 2, 3, 1))
sketch8.addConstraint(Sketcher.Constraint("Coincident", 3, 2, 0, 1))
sketch8.addConstraint(Sketcher.Constraint("Vertical", 0))
sketch8.addConstraint(Sketcher.Constraint("Horizontal", 1))
sketch8.addConstraint(Sketcher.Constraint("Vertical", 2))
sketch8.addConstraint(Sketcher.Constraint("Horizontal", 3))
sketch8.addConstraint(Sketcher.Constraint("DistanceX", 1, 1, 1, 2, 80.0))
sketch8.addConstraint(Sketcher.Constraint("DistanceY", 0, 2, 0, 1, 28.0))
sketch8.addConstraint(Sketcher.Constraint("DistanceX", 0, 2, -1, 1, 5.0))
sketch8.addConstraint(Sketcher.Constraint("DistanceY", -1, 1, 0, 2, 82.0))
pad8 = body17.newObject("PartDesign::Pad", "Pad007")
pad8.Profile = sketch8
pad8.Length = 30
body18 = doc.addObject("PartDesign::Body", "Body017")

# Sketch on XY plane
sketch9 = body18.newObject("Sketcher::SketchObject", "Sketch008")
sketch9.AttachmentSupport = (doc.getObject("XY_Plane017"), [""])
sketch9.MapMode = "FlatFace"
sketch9.addGeometry(Part.LineSegment(App.Vector(-2.5, 14.2, 0), App.Vector(-2.5, -4.1, 0)), False)
sketch9.addGeometry(Part.ArcOfCircle(Part.Circle(App.Vector(6.5, -4.1, 0), App.Vector(0, 0, 1), 9), math.radians(-180), math.radians(-90)), False)
sketch9.addGeometry(Part.LineSegment(App.Vector(6.5, -13.1, 0), App.Vector(61.5, -13.1, 0)), False)
sketch9.addGeometry(Part.ArcOfCircle(Part.Circle(App.Vector(61.5, -4.1, 0), App.Vector(0, 0, 1), 9), math.radians(-90), math.radians(0)), False)
sketch9.addGeometry(Part.LineSegment(App.Vector(70.5, -4.1, 0), App.Vector(70.5, 14.2, 0)), False)
sketch9.addGeometry(Part.ArcOfCircle(Part.Circle(App.Vector(61.5, 14.2, 0), App.Vector(0, 0, 1), 9), math.radians(0), math.radians(90)), False)
sketch9.addGeometry(Part.LineSegment(App.Vector(61.5, 23.2, 0), App.Vector(6.5, 23.2, 0)), False)
sketch9.addGeometry(Part.ArcOfCircle(Part.Circle(App.Vector(6.5, 14.2, 0), App.Vector(0, 0, 1), 9), math.radians(90), math.radians(180)), False)
sketch9.addGeometry(Part.LineSegment(App.Vector(-1, 1.2, 0), App.Vector(1.6, 1.2, 0)), False)
sketch9.addGeometry(Part.LineSegment(App.Vector(1.6, 1.2, 0), App.Vector(3.5, 7.4, 0)), False)
sketch9.addGeometry(Part.LineSegment(App.Vector(3.5, 7.4, 0), App.Vector(1.6, 7.4, 0)), False)
sketch9.addGeometry(Part.LineSegment(App.Vector(1.6, 7.4, 0), App.Vector(1.6, 10.8, 0)), False)
sketch9.addGeometry(Part.LineSegment(App.Vector(1.6, 10.8, 0), App.Vector(66.4, 10.8, 0)), False)
sketch9.addGeometry(Part.LineSegment(App.Vector(66.4, 10.8, 0), App.Vector(66.4, 7.4, 0)), False)
sketch9.addGeometry(Part.LineSegment(App.Vector(66.4, 7.4, 0), App.Vector(64.4, 7.4, 0)), False)
sketch9.addGeometry(Part.LineSegment(App.Vector(64.4, 7.4, 0), App.Vector(64.4, 5.4, 0)), False)
sketch9.addGeometry(Part.LineSegment(App.Vector(64.4, 5.4, 0), App.Vector(66.4, 5.4, 0)), False)
sketch9.addGeometry(Part.LineSegment(App.Vector(66.4, 5.4, 0), App.Vector(66.4, 1.2, 0)), False)
sketch9.addGeometry(Part.LineSegment(App.Vector(66.4, 1.2, 0), App.Vector(69, 1.2, 0)), False)
sketch9.addGeometry(Part.LineSegment(App.Vector(69, 1.2, 0), App.Vector(69, -0.1, 0)), False)
sketch9.addGeometry(Part.LineSegment(App.Vector(69, -0.1, 0), App.Vector(66.4, -0.1, 0)), False)
sketch9.addGeometry(Part.LineSegment(App.Vector(66.4, -0.1, 0), App.Vector(66.4, -6.1, 0)), False)
sketch9.addGeometry(Part.ArcOfCircle(Part.Circle(App.Vector(61.4, -6.1, 0), App.Vector(0, 0, 1), 5), math.radians(-90), math.radians(0)), False)
sketch9.addGeometry(Part.LineSegment(App.Vector(61.4, -11.1, 0), App.Vector(6.6, -11.1, 0)), False)
sketch9.addGeometry(Part.ArcOfCircle(Part.Circle(App.Vector(6.6, -6.1, 0), App.Vector(0, 0, 1), 5), math.radians(180), math.radians(270)), False)
sketch9.addGeometry(Part.LineSegment(App.Vector(1.6, -6.1, 0), App.Vector(1.6, -0.1, 0)), False)
sketch9.addGeometry(Part.LineSegment(App.Vector(1.6, -0.1, 0), App.Vector(-1, -0.1, 0)), False)
sketch9.addGeometry(Part.LineSegment(App.Vector(-1, -0.1, 0), App.Vector(-1, 1.2, 0)), False)
sketch9.addConstraint(Sketcher.Constraint("Tangent", 0, 2, 1, 1))
sketch9.addConstraint(Sketcher.Constraint("Tangent", 1, 2, 2, 1))
sketch9.addConstraint(Sketcher.Constraint("Tangent", 2, 2, 3, 1))
sketch9.addConstraint(Sketcher.Constraint("Tangent", 3, 2, 4, 1))
sketch9.addConstraint(Sketcher.Constraint("Tangent", 4, 2, 5, 1))
sketch9.addConstraint(Sketcher.Constraint("Tangent", 5, 2, 6, 1))
sketch9.addConstraint(Sketcher.Constraint("Tangent", 6, 2, 7, 1))
sketch9.addConstraint(Sketcher.Constraint("Tangent", 7, 2, 0, 1))
sketch9.addConstraint(Sketcher.Constraint("Coincident", 8, 2, 9, 1))
sketch9.addConstraint(Sketcher.Constraint("Coincident", 9, 2, 10, 1))
sketch9.addConstraint(Sketcher.Constraint("Coincident", 10, 2, 11, 1))
sketch9.addConstraint(Sketcher.Constraint("Coincident", 11, 2, 12, 1))
sketch9.addConstraint(Sketcher.Constraint("Coincident", 12, 2, 13, 1))
sketch9.addConstraint(Sketcher.Constraint("Coincident", 13, 2, 14, 1))
sketch9.addConstraint(Sketcher.Constraint("Coincident", 14, 2, 15, 1))
sketch9.addConstraint(Sketcher.Constraint("Coincident", 15, 2, 16, 1))
sketch9.addConstraint(Sketcher.Constraint("Coincident", 16, 2, 17, 1))
sketch9.addConstraint(Sketcher.Constraint("Coincident", 17, 2, 18, 1))
sketch9.addConstraint(Sketcher.Constraint("Coincident", 18, 2, 19, 1))
sketch9.addConstraint(Sketcher.Constraint("Coincident", 19, 2, 20, 1))
sketch9.addConstraint(Sketcher.Constraint("Coincident", 20, 2, 21, 1))
sketch9.addConstraint(Sketcher.Constraint("Tangent", 21, 2, 22, 2))
sketch9.addConstraint(Sketcher.Constraint("Tangent", 22, 1, 23, 1))
sketch9.addConstraint(Sketcher.Constraint("Tangent", 23, 2, 24, 2))
sketch9.addConstraint(Sketcher.Constraint("Tangent", 24, 1, 25, 1))
sketch9.addConstraint(Sketcher.Constraint("Coincident", 25, 2, 26, 1))
sketch9.addConstraint(Sketcher.Constraint("Coincident", 26, 2, 27, 1))
sketch9.addConstraint(Sketcher.Constraint("Coincident", 27, 2, 8, 1))
sketch9.addConstraint(Sketcher.Constraint("Vertical", 0))
sketch9.addConstraint(Sketcher.Constraint("Horizontal", 2))
sketch9.addConstraint(Sketcher.Constraint("Vertical", 4))
sketch9.addConstraint(Sketcher.Constraint("Horizontal", 6))
sketch9.addConstraint(Sketcher.Constraint("Horizontal", 8))
sketch9.addConstraint(Sketcher.Constraint("Horizontal", 10))
sketch9.addConstraint(Sketcher.Constraint("Vertical", 11))
sketch9.addConstraint(Sketcher.Constraint("Horizontal", 12))
sketch9.addConstraint(Sketcher.Constraint("Vertical", 13))
sketch9.addConstraint(Sketcher.Constraint("Horizontal", 14))
sketch9.addConstraint(Sketcher.Constraint("Vertical", 15))
sketch9.addConstraint(Sketcher.Constraint("Horizontal", 16))
sketch9.addConstraint(Sketcher.Constraint("Vertical", 17))
sketch9.addConstraint(Sketcher.Constraint("Horizontal", 18))
sketch9.addConstraint(Sketcher.Constraint("Vertical", 19))
sketch9.addConstraint(Sketcher.Constraint("Horizontal", 20))
sketch9.addConstraint(Sketcher.Constraint("Vertical", 21))
sketch9.addConstraint(Sketcher.Constraint("Horizontal", 23))
sketch9.addConstraint(Sketcher.Constraint("Vertical", 25))
sketch9.addConstraint(Sketcher.Constraint("Horizontal", 26))
sketch9.addConstraint(Sketcher.Constraint("Vertical", 27))
sketch9.addConstraint(Sketcher.Constraint("Equal", 1, 3))
sketch9.addConstraint(Sketcher.Constraint("Equal", 3, 5))
sketch9.addConstraint(Sketcher.Constraint("Equal", 5, 7))
sketch9.addConstraint(Sketcher.Constraint("Equal", 22, 24))
sketch9.addConstraint(Sketcher.Constraint("Horizontal", 10, 2, 13, 2))
sketch9.addConstraint(Sketcher.Constraint("Horizontal", 8, 2, 17, 2))
sketch9.addConstraint(Sketcher.Constraint("Horizontal", 20, 2, 25, 2))
sketch9.addConstraint(Sketcher.Constraint("Vertical", 8, 2, 10, 2))
sketch9.addConstraint(Sketcher.Constraint("Vertical", 13, 2, 16, 2))
sketch9.addConstraint(Sketcher.Constraint("Vertical", 17, 2, 20, 2))
sketch9.addConstraint(Sketcher.Constraint("Vertical", 11, 2, 24, 1))
sketch9.addConstraint(Sketcher.Constraint("Equal", 8, 18))
sketch9.addConstraint(Sketcher.Constraint("Equal", 16, 15))
sketch9.addConstraint(Sketcher.Constraint("Radius", 1, 9.0))
sketch9.addConstraint(Sketcher.Constraint("Radius", 22, 5.0))
sketch9.addConstraint(Sketcher.Constraint("DistanceX", 2, 1, 2, 2, 55.0))
sketch9.addConstraint(Sketcher.Constraint("DistanceX", 14, 2, 14, 1, 2.0))
sketch9.addConstraint(Sketcher.Constraint("DistanceY", 21, 2, 21, 1, 6.0))
sketch9.addConstraint(Sketcher.Constraint("DistanceX", 8, 1, 8, 2, 2.6))
sketch9.addConstraint(Sketcher.Constraint("DistanceX", 10, 2, 10, 1, 1.9))
sketch9.addConstraint(Sketcher.Constraint("DistanceX", 12, 1, 12, 2, 64.8))
sketch9.addConstraint(Sketcher.Constraint("DistanceY", 0, 2, 0, 1, 18.3))
sketch9.addConstraint(Sketcher.Constraint("DistanceY", 11, 1, 11, 2, 3.4))
sketch9.addConstraint(Sketcher.Constraint("DistanceY", 17, 2, 17, 1, 4.2))
sketch9.addConstraint(Sketcher.Constraint("DistanceY", 19, 2, 19, 1, 1.3))
sketch9.addConstraint(Sketcher.Constraint("DistanceX", -1, 1, 18, 2, 69.0))
sketch9.addConstraint(Sketcher.Constraint("DistanceY", 22, 3, 3, 3, 2.0))
sketch9.addConstraint(Sketcher.Constraint("DistanceX", 9, 2, 7, 3, 3.0))
sketch9.addConstraint(Sketcher.Constraint("DistanceY", 1, 3, -1, 1, 4.1))
pad9 = body18.newObject("PartDesign::Pad", "Pad008")
pad9.Profile = sketch9
pad9.Length = 35.5
body19 = doc.addObject("PartDesign::Body", "Body018")
doc.recompute()

body18.Placement = App.Placement(App.Vector(0, 0, 0), App.Rotation(App.Vector(1, 0, 0), 90))
boolean14 = body19.newObject("PartDesign::Boolean", "Boolean013")
boolean14.Type = "Fuse"
boolean14.addObjects([body18])
body20 = doc.addObject("PartDesign::Body", "Body019")
doc.recompute()

body19.Placement = App.Placement(App.Vector(0, 120, 0), App.Rotation(App.Vector(0, 0, 1), 0))
boolean15 = body20.newObject("PartDesign::Boolean", "Boolean014")
boolean15.Type = "Fuse"
boolean15.addObjects([body19])
body21 = doc.addObject("PartDesign::Body", "Body020")
doc.recompute()

body20.Placement = App.Placement(App.Vector(0, 1.5, 0), App.Rotation(App.Vector(0, 0, 1), 0))
boolean16 = body21.newObject("PartDesign::Boolean", "Boolean015")
boolean16.Type = "Fuse"
boolean16.addObjects([body20])
doc.recompute()

boolean17 = body21.newObject("PartDesign::Boolean", "Boolean016")
boolean17.Type = "Cut"
boolean17.addObjects([body17])
doc.recompute()

boolean18 = body21.newObject("PartDesign::Boolean", "Boolean017")
boolean18.Type = "Fuse"
boolean18.addObjects([body16])
doc.recompute()

boolean19 = body21.newObject("PartDesign::Boolean", "Boolean018")
boolean19.Type = "Cut"
boolean19.addObjects([body12])
doc.recompute()

boolean20 = body21.newObject("PartDesign::Boolean", "Boolean019")
boolean20.Type = "Fuse"
boolean20.addObjects([body11])

doc.recompute()
